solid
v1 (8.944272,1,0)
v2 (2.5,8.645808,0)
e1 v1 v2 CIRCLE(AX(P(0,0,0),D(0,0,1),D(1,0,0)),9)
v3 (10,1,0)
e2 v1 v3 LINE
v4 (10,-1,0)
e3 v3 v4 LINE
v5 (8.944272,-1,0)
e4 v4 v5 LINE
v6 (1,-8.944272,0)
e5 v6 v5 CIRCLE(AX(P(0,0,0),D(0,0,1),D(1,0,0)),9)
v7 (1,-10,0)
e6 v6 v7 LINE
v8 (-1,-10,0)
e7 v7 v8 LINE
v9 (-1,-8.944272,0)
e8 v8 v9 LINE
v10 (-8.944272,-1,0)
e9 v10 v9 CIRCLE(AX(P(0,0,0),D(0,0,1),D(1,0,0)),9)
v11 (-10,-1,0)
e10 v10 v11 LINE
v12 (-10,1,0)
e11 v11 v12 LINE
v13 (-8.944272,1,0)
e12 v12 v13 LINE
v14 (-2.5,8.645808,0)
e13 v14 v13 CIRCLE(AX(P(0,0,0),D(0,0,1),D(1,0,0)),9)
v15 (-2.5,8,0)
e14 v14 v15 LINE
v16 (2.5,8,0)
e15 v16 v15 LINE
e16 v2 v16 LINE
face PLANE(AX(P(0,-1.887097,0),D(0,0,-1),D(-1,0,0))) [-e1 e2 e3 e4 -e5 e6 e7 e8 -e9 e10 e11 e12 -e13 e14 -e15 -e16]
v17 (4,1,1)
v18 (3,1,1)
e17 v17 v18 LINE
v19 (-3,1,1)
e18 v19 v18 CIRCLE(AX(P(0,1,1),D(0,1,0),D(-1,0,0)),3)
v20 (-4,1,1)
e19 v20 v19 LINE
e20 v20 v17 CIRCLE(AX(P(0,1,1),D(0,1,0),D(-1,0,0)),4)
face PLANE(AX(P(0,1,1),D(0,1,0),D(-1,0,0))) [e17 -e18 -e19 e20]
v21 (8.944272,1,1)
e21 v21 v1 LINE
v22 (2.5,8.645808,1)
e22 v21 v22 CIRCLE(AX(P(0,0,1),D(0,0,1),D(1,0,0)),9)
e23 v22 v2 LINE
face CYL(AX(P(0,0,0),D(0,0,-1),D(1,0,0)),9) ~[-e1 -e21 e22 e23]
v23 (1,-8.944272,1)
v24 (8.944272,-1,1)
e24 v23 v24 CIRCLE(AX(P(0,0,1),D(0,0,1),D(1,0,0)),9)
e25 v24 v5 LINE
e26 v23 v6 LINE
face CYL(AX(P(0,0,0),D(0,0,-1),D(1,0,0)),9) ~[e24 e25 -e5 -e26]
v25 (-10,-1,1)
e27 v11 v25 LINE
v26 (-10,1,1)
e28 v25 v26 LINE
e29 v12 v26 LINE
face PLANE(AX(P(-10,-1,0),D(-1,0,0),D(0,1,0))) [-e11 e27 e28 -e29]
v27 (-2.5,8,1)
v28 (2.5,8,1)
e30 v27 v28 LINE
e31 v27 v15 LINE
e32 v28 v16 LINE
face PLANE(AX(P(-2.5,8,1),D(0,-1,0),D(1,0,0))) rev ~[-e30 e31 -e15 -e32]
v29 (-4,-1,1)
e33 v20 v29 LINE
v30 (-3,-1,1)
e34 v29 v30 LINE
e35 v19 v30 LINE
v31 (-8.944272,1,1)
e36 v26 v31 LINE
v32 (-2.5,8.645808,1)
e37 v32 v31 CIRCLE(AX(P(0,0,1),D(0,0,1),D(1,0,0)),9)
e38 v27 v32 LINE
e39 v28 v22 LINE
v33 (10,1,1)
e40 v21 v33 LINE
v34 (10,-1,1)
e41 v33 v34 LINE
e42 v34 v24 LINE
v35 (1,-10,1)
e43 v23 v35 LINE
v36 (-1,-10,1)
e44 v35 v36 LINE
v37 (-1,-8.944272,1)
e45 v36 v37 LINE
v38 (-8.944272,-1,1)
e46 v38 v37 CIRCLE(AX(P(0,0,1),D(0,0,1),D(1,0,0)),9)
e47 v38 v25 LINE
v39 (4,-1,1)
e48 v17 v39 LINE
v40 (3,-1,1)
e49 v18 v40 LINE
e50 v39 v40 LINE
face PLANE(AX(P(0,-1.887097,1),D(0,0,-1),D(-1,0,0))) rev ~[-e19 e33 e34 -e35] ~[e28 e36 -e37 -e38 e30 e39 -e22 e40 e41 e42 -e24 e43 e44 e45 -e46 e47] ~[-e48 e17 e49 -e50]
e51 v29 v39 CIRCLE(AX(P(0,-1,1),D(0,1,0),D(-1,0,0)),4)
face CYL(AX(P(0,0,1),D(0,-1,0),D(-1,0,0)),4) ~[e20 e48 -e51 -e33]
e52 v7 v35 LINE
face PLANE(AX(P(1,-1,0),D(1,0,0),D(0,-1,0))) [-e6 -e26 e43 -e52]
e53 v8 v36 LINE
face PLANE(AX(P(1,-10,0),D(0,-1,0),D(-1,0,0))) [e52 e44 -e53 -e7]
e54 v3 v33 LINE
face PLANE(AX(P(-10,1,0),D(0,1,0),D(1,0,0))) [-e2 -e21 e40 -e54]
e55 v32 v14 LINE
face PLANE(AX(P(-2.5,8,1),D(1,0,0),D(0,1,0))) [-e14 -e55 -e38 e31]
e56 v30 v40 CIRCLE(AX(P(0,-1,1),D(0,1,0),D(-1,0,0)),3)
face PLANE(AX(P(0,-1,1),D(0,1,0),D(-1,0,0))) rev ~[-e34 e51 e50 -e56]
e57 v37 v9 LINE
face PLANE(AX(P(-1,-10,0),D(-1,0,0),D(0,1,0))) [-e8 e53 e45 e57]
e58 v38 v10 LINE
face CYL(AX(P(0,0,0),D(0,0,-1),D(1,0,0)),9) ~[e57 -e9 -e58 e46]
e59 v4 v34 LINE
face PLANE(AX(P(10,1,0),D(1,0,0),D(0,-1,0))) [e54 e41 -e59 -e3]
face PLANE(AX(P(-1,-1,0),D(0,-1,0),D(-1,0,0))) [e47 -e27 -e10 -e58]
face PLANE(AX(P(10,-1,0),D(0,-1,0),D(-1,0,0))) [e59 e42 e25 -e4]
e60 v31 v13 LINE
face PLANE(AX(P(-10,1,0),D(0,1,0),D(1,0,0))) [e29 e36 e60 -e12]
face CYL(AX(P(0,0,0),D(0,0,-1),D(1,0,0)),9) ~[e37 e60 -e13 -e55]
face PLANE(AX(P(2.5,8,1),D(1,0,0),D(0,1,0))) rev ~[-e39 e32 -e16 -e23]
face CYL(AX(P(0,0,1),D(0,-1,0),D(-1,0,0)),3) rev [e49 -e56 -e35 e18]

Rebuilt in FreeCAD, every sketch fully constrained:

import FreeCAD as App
import Part
import Sketcher
from FreeCAD import Vector
Q = App.Units.Quantity

doc = App.newDocument("Part")
body = doc.addObject("PartDesign::Body", "Body")

# Sketch on XY plane
sketch1 = body.newObject("Sketcher::SketchObject", "Sketch")
sketch1.AttachmentSupport = (doc.getObject("XY_Plane"), [""])
sketch1.MapMode = "FlatFace"
sketch1.addGeometry(Part.Circle(Vector(0, 0, 0), Vector(0, 0, 1), 9), False)
sketch1.addConstraint([
    Sketcher.Constraint("Coincident", 0, 3, -1, 1),
    Sketcher.Constraint("Diameter", 0, Q("18 mm")),
])
pad1 = body.newObject("PartDesign::Pad", "Pad")
pad1.Profile = sketch1
pad1.Length = 1

# Sketch on XY plane
sketch2 = body.newObject("Sketcher::SketchObject", "Sketch001")
sketch2.AttachmentSupport = (doc.getObject("XY_Plane"), [""])
sketch2.MapMode = "FlatFace"
sketch2.addGeometry([
    Part.LineSegment(Vector(10, 1, 0), Vector(-10, 1, 0)),  # 0
    Part.LineSegment(Vector(-10, 1, 0), Vector(-10, -1, 0)),  # 1
    Part.LineSegment(Vector(-10, -1, 0), Vector(-1, -1, 0)),  # 2
    Part.LineSegment(Vector(-1, -1, 0), Vector(-1, -10, 0)),  # 3
    Part.LineSegment(Vector(-1, -10, 0), Vector(1, -10, 0)),  # 4
    Part.LineSegment(Vector(1, -10, 0), Vector(1, -1, 0)),  # 5
    Part.LineSegment(Vector(1, -1, 0), Vector(10, -1, 0)),  # 6
    Part.LineSegment(Vector(10, -1, 0), Vector(10, 1, 0)),  # 7
], False)
sketch2.addConstraint([
    Sketcher.Constraint("Coincident", 0, 2, 1, 1),
    Sketcher.Constraint("Coincident", 1, 2, 2, 1),
    Sketcher.Constraint("Coincident", 2, 2, 3, 1),
    Sketcher.Constraint("Coincident", 3, 2, 4, 1),
    Sketcher.Constraint("Coincident", 4, 2, 5, 1),
    Sketcher.Constraint("Coincident", 5, 2, 6, 1),
    Sketcher.Constraint("Coincident", 6, 2, 7, 1),
    Sketcher.Constraint("Coincident", 7, 2, 0, 1),
    Sketcher.Constraint("Horizontal", 0),
    Sketcher.Constraint("Vertical", 1),
    Sketcher.Constraint("Horizontal", 2),
    Sketcher.Constraint("Vertical", 3),
    Sketcher.Constraint("Horizontal", 4),
    Sketcher.Constraint("Vertical", 5),
    Sketcher.Constraint("Horizontal", 6),
    Sketcher.Constraint("Vertical", 7),
    Sketcher.Constraint("Symmetric", 0, 2, 6, 2, -1, 1),
    Sketcher.Constraint("Symmetric", 2, 2, 5, 2, -2),
    Sketcher.Constraint("Equal", 4, 1),
    Sketcher.Constraint("Equal", 6, 3),
    Sketcher.Constraint("DistanceX", 0, 2, 0, 1, Q("20 mm")),
    Sketcher.Constraint("DistanceX", 2, 1, 2, 2, Q("9 mm")),
])
pad2 = body.newObject("PartDesign::Pad", "Pad001")
pad2.Profile = sketch2
pad2.Length = 1

# Sketch on XY plane
sketch3 = body.newObject("Sketcher::SketchObject", "Sketch002")
sketch3.AttachmentSupport = (doc.getObject("XY_Plane"), [""])
sketch3.MapMode = "FlatFace"
sketch3.AttachmentOffset = App.Placement(Vector(0, 0, 1), App.Rotation())
sketch3.addGeometry([
    Part.LineSegment(Vector(-2, 13, 0), Vector(-2, 8, 0)),
    Part.LineSegment(Vector(-2, 8, 0), Vector(2, 8, 0)),
    Part.LineSegment(Vector(2, 8, 0), Vector(2, 13, 0)),
    Part.LineSegment(Vector(2, 13, 0), Vector(-2, 13, 0)),
], False)
sketch3.addConstraint([
    Sketcher.Constraint("Coincident", 0, 2, 1, 1),
    Sketcher.Constraint("Coincident", 1, 2, 2, 1),
    Sketcher.Constraint("Coincident", 2, 2, 3, 1),
    Sketcher.Constraint("Coincident", 3, 2, 0, 1),
    Sketcher.Constraint("Vertical", 0),
    Sketcher.Constraint("Horizontal", 1),
    Sketcher.Constraint("Vertical", 2),
    Sketcher.Constraint("Horizontal", 3),
    Sketcher.Constraint("Equal", 3, 0),
    Sketcher.Constraint("DistanceX", 1, 1, 1, 2, Q("5 mm")),
    Sketcher.Constraint("DistanceY", -1, 1, 0, 2, Q("8 mm")),
    Sketcher.Constraint("DistanceX", 0, 2, -1, 1, Q("2.5 mm")),
])
pocket1 = body.newObject("PartDesign::Pocket", "Pocket")
pocket1.Profile = sketch3
pocket1.Length = 5

# Sketch on XY plane
sketch4 = body.newObject("Sketcher::SketchObject", "Sketch003")
sketch4.AttachmentSupport = (doc.getObject("XY_Plane"), [""])
sketch4.MapMode = "FlatFace"
sketch4.AttachmentOffset = App.Placement(Vector(0, 0, 1), App.Rotation())
sketch4.addGeometry([
    Part.LineSegment(Vector(-4, -1, 0), Vector(-4, 1, 0)),
    Part.LineSegment(Vector(-4, 1, 0), Vector(-3, 1, 0)),
    Part.LineSegment(Vector(-3, 1, 0), Vector(-3, -1, 0)),
    Part.LineSegment(Vector(-3, -1, 0), Vector(-4, -1, 0)),
], False)
sketch4.addConstraint([
    Sketcher.Constraint("Coincident", 0, 2, 1, 1),
    Sketcher.Constraint("Coincident", 1, 2, 2, 1),
    Sketcher.Constraint("Coincident", 2, 2, 3, 1),
    Sketcher.Constraint("Coincident", 3, 2, 0, 1),
    Sketcher.Constraint("Vertical", 0),
    Sketcher.Constraint("Horizontal", 1),
    Sketcher.Constraint("Vertical", 2),
    Sketcher.Constraint("Horizontal", 3),
    Sketcher.Constraint("DistanceX", 1, 1, 1, 2, Q("1 mm")),
    Sketcher.Constraint("DistanceY", 0, 1, 0, 2, Q("2 mm")),
    Sketcher.Constraint("DistanceX", 0, 2, -1, 1, Q("4 mm")),
    Sketcher.Constraint("DistanceY", -1, 1, 0, 2, Q("1 mm")),
])
revolution = body.newObject("PartDesign::Revolution", "Revolution")
revolution.Profile = sketch4
revolution.ReferenceAxis = (sketch4, ["V_Axis"])
revolution.Angle = 180

doc.recompute()
